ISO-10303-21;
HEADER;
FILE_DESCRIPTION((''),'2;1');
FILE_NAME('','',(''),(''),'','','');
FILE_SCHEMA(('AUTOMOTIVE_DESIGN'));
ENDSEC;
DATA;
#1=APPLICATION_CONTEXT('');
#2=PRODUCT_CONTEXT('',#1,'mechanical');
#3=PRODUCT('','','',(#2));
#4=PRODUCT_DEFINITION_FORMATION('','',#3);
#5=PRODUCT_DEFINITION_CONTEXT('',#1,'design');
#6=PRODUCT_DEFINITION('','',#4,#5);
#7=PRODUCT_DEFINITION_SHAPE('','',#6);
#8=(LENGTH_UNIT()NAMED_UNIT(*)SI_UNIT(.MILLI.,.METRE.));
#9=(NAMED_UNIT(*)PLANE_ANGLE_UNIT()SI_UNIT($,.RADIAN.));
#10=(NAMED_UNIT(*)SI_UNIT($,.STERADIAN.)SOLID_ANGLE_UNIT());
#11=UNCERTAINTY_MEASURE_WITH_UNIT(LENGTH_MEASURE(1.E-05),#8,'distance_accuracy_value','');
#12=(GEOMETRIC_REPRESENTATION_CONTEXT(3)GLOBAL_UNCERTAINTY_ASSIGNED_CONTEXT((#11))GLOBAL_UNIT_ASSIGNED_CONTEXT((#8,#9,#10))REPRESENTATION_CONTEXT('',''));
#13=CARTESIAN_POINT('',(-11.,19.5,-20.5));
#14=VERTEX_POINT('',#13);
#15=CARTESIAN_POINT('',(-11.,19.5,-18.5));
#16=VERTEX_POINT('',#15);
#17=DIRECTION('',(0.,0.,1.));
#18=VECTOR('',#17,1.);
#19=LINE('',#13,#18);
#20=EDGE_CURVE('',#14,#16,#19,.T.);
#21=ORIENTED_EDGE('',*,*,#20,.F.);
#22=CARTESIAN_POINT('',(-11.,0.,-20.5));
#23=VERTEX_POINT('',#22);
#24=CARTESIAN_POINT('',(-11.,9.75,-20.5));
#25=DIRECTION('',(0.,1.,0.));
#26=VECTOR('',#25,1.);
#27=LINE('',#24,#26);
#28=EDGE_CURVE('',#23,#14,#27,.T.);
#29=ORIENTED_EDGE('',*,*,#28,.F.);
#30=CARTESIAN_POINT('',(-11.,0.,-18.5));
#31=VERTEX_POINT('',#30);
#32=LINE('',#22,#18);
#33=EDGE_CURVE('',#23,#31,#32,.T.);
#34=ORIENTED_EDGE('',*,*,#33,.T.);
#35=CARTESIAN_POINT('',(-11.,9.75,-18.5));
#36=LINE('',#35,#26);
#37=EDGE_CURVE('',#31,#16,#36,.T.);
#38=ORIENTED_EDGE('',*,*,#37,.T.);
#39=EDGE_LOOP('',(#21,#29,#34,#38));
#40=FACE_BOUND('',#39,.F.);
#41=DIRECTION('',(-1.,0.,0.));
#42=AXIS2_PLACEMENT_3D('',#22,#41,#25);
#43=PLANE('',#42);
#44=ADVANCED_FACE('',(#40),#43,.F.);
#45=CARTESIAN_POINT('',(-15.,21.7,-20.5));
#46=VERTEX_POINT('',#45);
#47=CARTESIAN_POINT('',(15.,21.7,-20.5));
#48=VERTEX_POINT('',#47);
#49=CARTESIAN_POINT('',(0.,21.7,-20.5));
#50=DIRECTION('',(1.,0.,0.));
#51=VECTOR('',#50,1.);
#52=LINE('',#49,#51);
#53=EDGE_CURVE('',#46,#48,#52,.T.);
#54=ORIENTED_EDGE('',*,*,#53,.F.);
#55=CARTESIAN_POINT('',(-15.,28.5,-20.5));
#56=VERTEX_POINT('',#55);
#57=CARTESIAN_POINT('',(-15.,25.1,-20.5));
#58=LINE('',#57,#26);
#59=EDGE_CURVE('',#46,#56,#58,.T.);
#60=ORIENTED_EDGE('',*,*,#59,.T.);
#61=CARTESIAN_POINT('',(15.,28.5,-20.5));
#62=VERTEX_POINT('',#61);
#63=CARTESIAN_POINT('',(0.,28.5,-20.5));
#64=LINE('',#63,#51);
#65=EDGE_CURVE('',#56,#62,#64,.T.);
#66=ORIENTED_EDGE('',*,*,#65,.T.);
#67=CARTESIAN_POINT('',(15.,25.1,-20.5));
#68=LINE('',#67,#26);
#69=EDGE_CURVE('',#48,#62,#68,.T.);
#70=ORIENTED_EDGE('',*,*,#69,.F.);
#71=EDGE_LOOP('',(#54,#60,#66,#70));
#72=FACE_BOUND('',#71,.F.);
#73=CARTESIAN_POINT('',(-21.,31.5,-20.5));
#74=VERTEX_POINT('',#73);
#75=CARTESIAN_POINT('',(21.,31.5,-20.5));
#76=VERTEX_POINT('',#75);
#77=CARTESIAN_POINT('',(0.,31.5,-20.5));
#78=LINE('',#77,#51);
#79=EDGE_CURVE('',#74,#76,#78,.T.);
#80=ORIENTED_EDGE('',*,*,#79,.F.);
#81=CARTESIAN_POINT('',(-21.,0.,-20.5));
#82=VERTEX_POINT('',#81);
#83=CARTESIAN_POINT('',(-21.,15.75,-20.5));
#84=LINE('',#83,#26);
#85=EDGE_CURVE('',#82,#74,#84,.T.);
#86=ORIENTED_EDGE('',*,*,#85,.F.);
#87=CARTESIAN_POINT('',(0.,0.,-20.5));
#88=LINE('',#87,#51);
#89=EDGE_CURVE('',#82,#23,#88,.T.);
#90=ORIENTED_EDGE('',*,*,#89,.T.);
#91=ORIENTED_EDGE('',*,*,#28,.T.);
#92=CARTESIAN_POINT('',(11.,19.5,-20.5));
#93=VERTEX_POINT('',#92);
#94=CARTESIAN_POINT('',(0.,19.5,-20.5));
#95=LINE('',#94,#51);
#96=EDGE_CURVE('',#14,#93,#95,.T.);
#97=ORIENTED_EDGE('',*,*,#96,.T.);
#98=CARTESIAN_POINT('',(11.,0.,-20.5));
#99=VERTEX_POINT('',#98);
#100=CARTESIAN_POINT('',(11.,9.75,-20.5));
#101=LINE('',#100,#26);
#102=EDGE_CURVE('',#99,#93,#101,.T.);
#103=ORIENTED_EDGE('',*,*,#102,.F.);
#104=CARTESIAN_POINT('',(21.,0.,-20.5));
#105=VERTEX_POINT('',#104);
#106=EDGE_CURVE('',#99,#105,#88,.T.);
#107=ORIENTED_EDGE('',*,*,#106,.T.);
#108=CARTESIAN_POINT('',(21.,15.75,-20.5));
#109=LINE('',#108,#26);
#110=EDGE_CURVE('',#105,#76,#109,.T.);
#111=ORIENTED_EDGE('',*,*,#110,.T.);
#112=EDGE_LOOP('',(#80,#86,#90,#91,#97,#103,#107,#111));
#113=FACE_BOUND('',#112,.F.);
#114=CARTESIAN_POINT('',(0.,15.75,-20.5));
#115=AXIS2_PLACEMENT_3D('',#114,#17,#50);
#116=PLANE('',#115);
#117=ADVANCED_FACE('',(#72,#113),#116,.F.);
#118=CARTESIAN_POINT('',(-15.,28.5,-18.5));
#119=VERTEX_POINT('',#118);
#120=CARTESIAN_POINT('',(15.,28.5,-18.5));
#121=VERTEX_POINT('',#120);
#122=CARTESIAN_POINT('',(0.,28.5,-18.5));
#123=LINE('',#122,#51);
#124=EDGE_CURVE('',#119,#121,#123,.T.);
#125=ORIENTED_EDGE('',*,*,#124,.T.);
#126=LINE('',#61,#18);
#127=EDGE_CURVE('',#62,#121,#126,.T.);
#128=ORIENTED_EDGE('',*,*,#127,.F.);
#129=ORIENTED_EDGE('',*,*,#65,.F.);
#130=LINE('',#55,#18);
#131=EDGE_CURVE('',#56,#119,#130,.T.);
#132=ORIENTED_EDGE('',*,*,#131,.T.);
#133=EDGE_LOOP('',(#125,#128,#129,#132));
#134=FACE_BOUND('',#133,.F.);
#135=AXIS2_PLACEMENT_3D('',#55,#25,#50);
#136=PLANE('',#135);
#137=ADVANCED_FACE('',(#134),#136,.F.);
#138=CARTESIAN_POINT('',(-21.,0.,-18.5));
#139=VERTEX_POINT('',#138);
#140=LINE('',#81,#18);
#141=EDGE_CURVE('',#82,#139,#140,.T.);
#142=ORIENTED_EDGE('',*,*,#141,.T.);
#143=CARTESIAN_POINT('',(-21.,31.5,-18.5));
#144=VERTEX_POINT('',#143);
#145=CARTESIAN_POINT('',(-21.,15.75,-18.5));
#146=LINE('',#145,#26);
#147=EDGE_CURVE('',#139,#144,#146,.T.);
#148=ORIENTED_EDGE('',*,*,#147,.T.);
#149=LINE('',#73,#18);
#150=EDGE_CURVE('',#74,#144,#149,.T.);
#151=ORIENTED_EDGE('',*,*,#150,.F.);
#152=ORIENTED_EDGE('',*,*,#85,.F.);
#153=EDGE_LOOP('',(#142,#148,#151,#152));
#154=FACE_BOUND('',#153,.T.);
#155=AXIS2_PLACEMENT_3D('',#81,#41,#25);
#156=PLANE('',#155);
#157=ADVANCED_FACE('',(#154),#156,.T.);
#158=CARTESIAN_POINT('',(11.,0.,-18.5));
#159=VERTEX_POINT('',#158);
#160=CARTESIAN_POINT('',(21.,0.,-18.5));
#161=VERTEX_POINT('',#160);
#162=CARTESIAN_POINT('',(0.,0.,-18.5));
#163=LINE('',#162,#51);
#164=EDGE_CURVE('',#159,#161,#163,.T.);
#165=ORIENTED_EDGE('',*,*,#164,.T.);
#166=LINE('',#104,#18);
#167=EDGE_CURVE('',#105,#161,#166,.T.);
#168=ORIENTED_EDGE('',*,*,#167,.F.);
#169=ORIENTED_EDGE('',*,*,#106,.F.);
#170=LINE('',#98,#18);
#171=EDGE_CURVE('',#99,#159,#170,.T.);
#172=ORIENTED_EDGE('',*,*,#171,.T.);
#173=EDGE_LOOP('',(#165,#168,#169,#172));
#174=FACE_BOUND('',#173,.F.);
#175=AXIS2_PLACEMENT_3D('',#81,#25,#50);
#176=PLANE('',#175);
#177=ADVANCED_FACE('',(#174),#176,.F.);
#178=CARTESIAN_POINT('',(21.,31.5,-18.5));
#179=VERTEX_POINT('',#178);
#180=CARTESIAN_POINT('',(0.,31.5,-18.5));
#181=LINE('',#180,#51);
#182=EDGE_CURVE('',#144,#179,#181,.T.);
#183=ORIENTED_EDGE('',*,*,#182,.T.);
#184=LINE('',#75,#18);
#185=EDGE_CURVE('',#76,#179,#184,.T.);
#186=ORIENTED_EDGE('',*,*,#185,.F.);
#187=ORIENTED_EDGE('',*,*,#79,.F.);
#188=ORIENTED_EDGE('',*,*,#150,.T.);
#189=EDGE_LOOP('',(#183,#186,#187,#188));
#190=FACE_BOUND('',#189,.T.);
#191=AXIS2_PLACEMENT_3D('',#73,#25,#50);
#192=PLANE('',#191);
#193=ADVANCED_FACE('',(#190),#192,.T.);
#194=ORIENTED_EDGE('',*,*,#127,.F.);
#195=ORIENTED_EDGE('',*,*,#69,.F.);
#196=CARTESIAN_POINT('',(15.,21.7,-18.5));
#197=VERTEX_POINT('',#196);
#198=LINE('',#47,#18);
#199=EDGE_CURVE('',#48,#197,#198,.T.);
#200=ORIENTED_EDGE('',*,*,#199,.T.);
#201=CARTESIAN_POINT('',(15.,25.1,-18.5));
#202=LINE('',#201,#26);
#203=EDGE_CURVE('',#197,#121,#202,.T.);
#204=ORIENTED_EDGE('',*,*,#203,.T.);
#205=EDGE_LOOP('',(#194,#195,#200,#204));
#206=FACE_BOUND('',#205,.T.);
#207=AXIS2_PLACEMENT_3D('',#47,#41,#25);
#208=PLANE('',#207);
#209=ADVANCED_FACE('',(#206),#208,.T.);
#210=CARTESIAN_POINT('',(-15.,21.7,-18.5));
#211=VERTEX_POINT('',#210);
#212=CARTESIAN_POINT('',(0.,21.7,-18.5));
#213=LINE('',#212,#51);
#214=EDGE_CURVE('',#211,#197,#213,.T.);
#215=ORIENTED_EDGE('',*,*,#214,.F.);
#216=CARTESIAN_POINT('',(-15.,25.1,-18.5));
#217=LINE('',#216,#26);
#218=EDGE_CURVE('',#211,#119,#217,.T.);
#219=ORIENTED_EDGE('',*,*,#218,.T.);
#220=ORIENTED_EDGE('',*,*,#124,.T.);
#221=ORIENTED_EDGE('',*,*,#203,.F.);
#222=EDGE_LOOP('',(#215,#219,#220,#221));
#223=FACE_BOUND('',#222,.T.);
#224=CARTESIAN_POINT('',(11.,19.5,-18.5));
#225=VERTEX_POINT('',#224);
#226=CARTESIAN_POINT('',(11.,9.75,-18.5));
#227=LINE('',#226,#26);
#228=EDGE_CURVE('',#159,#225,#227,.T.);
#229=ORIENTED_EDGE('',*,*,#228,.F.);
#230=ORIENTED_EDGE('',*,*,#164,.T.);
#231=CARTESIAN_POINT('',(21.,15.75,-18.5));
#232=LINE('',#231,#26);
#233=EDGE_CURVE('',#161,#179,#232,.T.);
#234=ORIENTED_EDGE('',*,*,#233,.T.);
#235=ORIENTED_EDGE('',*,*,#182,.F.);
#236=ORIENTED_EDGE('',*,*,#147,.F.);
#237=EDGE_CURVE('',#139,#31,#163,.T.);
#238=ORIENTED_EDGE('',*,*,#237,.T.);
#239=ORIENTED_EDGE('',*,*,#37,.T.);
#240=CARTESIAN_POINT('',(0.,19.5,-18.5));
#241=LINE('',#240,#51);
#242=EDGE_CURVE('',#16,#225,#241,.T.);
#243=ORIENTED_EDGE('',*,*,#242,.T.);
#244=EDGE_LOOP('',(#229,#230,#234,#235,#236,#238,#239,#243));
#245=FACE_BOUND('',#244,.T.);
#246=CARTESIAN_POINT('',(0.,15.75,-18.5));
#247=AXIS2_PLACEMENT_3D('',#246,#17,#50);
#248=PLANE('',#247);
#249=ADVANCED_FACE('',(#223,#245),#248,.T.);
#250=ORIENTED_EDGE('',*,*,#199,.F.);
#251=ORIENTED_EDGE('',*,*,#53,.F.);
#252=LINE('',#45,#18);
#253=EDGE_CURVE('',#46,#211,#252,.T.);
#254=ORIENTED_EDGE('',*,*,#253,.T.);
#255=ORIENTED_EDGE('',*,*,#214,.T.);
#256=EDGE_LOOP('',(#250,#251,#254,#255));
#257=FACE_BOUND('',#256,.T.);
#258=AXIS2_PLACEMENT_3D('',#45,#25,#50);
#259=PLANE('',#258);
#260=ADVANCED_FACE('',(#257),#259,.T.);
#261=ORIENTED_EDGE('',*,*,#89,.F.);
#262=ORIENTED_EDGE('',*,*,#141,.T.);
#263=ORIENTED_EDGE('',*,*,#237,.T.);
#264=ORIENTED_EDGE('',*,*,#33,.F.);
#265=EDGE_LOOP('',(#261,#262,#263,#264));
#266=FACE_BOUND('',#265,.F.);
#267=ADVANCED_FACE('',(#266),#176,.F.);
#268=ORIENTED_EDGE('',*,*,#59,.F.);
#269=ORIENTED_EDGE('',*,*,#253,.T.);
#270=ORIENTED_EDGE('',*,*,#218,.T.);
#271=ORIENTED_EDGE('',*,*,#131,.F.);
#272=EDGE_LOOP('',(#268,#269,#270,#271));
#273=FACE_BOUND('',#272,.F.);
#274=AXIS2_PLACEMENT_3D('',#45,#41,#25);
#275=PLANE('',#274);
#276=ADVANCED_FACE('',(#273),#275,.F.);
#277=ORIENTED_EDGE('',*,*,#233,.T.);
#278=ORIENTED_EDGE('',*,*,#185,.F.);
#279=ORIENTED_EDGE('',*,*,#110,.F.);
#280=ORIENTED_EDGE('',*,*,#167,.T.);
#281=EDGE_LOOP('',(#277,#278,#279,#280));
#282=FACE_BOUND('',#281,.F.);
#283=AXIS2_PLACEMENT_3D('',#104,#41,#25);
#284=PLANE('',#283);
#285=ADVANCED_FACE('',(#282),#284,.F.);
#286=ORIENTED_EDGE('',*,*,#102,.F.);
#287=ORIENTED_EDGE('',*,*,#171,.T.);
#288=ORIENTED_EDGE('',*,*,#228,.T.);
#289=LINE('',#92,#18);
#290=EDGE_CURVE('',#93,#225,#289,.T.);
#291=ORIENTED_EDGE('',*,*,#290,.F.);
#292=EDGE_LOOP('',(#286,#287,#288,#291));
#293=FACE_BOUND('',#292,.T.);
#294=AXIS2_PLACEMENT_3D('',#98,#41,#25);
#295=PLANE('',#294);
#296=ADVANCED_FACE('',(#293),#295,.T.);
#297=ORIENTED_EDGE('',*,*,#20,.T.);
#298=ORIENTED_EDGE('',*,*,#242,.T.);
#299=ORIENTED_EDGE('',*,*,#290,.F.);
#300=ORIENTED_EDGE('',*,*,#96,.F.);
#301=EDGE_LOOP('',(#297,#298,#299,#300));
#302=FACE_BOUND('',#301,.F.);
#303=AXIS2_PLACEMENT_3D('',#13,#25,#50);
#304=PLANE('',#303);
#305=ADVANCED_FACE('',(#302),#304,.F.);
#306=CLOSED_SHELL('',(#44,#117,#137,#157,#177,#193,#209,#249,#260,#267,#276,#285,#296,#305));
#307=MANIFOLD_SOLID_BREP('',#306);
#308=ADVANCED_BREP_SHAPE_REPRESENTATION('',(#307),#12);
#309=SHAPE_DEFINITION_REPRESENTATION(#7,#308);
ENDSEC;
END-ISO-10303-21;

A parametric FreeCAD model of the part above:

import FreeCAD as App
import Part
import Sketcher

V = App.Vector

doc = App.newDocument("Part")
body = doc.addObject("PartDesign::Body", "Body")

# Sketch on XY plane
sketch1 = body.newObject("Sketcher::SketchObject", "Sketch")
sketch1.AttachmentSupport = (doc.getObject("XY_Plane"), [""])
sketch1.MapMode = "FlatFace"
sketch1.AttachmentOffset = App.Placement(V(0, 0, -20.5), App.Rotation())
sketch1.addGeometry([
    Part.LineSegment(V(-15, 28, 0), V(-15, 22, 0)),
    Part.LineSegment(V(-15, 22, 0), V(15, 22, 0)),
    Part.LineSegment(V(15, 22, 0), V(15, 28, 0)),
    Part.LineSegment(V(15, 28, 0), V(-15, 28, 0)),
], False)
sketch1.addConstraint([
    Sketcher.Constraint("Coincident", 0, 2, 1, 1),
    Sketcher.Constraint("Coincident", 1, 2, 2, 1),
    Sketcher.Constraint("Coincident", 2, 2, 3, 1),
    Sketcher.Constraint("Coincident", 3, 2, 0, 1),
    Sketcher.Constraint("Vertical", 0),
    Sketcher.Constraint("Horizontal", 1),
    Sketcher.Constraint("Vertical", 2),
    Sketcher.Constraint("Horizontal", 3),
    Sketcher.Constraint("DistanceX", 1, 1, 1, 2, 30.0),
    Sketcher.Constraint("DistanceY", 0, 2, 0, 1, 6.8),
    Sketcher.Constraint("DistanceX", 0, 2, -1, 1, 15.0),
    Sketcher.Constraint("DistanceY", -1, 1, 0, 2, 21.7),
])
pad1 = body.newObject("PartDesign::Pad", "Pad")
pad1.Profile = sketch1
pad1.Length = 2
body2 = doc.addObject("PartDesign::Body", "Body001")
body2.AllowCompound = True

# Sketch on XY plane
sketch2 = body2.newObject("Sketcher::SketchObject", "Sketch001")
sketch2.AttachmentSupport = (doc.getObject("XY_Plane001"), [""])
sketch2.MapMode = "FlatFace"
sketch2.AttachmentOffset = App.Placement(V(0, 0, -20.5), App.Rotation())
sketch2.addGeometry([
    Part.LineSegment(V(-11, 20, 0), V(-11, 0, 0)),
    Part.LineSegment(V(-11, 0, 0), V(11, 0, 0)),
    Part.LineSegment(V(11, 0, 0), V(11, 20, 0)),
    Part.LineSegment(V(11, 20, 0), V(-11, 20, 0)),
], False)
sketch2.addConstraint([
    Sketcher.Constraint("Coincident", 0, 2, 1, 1),
    Sketcher.Constraint("Coincident", 1, 2, 2, 1),
    Sketcher.Constraint("Coincident", 2, 2, 3, 1),
    Sketcher.Constraint("Coincident", 3, 2, 0, 1),
    Sketcher.Constraint("Vertical", 0),
    Sketcher.Constraint("Horizontal", 1),
    Sketcher.Constraint("Vertical", 2),
    Sketcher.Constraint("Horizontal", 3),
    Sketcher.Constraint("Symmetric", 0, 2, 1, 2, -1, 1),
    Sketcher.Constraint("DistanceX", 1, 1, 1, 2, 22.0),
    Sketcher.Constraint("DistanceY", 0, 2, 0, 1, 19.5),
])
pad2 = body2.newObject("PartDesign::Pad", "Pad001")
pad2.Profile = sketch2
pad2.Length = 2
doc.recompute()

boolean = body2.newObject("PartDesign::Boolean", "Boolean")
boolean.Type = "Fuse"
boolean.addObjects([body])
body3 = doc.addObject("PartDesign::Body", "Body002")

# Sketch on XY plane
sketch3 = body3.newObject("Sketcher::SketchObject", "Sketch002")
sketch3.AttachmentSupport = (doc.getObject("XY_Plane002"), [""])
sketch3.MapMode = "FlatFace"
sketch3.AttachmentOffset = App.Placement(V(0, 0, -20.5), App.Rotation())
sketch3.addGeometry([
    Part.LineSegment(V(-21, 32, 0), V(-21, 0, 0)),
    Part.LineSegment(V(-21, 0, 0), V(21, 0, 0)),
    Part.LineSegment(V(21, 0, 0), V(21, 32, 0)),
    Part.LineSegment(V(21, 32, 0), V(-21, 32, 0)),
], False)
sketch3.addConstraint([
    Sketcher.Constraint("Coincident", 0, 2, 1, 1),
    Sketcher.Constraint("Coincident", 1, 2, 2, 1),
    Sketcher.Constraint("Coincident", 2, 2, 3, 1),
    Sketcher.Constraint("Coincident", 3, 2, 0, 1),
    Sketcher.Constraint("Vertical", 0),
    Sketcher.Constraint("Horizontal", 1),
    Sketcher.Constraint("Vertical", 2),
    Sketcher.Constraint("Horizontal", 3),
    Sketcher.Constraint("Symmetric", 0, 2, 1, 2, -1, 1),
    Sketcher.Constraint("DistanceX", 1, 1, 1, 2, 42.0),
    Sketcher.Constraint("DistanceY", 0, 2, 0, 1, 31.5),
])
pad3 = body3.newObject("PartDesign::Pad", "Pad002")
pad3.Profile = sketch3
pad3.Length = 2
doc.recompute()

boolean2 = body3.newObject("PartDesign::Boolean", "Boolean001")
boolean2.Type = "Cut"
boolean2.addObjects([body2])

doc.recompute()
